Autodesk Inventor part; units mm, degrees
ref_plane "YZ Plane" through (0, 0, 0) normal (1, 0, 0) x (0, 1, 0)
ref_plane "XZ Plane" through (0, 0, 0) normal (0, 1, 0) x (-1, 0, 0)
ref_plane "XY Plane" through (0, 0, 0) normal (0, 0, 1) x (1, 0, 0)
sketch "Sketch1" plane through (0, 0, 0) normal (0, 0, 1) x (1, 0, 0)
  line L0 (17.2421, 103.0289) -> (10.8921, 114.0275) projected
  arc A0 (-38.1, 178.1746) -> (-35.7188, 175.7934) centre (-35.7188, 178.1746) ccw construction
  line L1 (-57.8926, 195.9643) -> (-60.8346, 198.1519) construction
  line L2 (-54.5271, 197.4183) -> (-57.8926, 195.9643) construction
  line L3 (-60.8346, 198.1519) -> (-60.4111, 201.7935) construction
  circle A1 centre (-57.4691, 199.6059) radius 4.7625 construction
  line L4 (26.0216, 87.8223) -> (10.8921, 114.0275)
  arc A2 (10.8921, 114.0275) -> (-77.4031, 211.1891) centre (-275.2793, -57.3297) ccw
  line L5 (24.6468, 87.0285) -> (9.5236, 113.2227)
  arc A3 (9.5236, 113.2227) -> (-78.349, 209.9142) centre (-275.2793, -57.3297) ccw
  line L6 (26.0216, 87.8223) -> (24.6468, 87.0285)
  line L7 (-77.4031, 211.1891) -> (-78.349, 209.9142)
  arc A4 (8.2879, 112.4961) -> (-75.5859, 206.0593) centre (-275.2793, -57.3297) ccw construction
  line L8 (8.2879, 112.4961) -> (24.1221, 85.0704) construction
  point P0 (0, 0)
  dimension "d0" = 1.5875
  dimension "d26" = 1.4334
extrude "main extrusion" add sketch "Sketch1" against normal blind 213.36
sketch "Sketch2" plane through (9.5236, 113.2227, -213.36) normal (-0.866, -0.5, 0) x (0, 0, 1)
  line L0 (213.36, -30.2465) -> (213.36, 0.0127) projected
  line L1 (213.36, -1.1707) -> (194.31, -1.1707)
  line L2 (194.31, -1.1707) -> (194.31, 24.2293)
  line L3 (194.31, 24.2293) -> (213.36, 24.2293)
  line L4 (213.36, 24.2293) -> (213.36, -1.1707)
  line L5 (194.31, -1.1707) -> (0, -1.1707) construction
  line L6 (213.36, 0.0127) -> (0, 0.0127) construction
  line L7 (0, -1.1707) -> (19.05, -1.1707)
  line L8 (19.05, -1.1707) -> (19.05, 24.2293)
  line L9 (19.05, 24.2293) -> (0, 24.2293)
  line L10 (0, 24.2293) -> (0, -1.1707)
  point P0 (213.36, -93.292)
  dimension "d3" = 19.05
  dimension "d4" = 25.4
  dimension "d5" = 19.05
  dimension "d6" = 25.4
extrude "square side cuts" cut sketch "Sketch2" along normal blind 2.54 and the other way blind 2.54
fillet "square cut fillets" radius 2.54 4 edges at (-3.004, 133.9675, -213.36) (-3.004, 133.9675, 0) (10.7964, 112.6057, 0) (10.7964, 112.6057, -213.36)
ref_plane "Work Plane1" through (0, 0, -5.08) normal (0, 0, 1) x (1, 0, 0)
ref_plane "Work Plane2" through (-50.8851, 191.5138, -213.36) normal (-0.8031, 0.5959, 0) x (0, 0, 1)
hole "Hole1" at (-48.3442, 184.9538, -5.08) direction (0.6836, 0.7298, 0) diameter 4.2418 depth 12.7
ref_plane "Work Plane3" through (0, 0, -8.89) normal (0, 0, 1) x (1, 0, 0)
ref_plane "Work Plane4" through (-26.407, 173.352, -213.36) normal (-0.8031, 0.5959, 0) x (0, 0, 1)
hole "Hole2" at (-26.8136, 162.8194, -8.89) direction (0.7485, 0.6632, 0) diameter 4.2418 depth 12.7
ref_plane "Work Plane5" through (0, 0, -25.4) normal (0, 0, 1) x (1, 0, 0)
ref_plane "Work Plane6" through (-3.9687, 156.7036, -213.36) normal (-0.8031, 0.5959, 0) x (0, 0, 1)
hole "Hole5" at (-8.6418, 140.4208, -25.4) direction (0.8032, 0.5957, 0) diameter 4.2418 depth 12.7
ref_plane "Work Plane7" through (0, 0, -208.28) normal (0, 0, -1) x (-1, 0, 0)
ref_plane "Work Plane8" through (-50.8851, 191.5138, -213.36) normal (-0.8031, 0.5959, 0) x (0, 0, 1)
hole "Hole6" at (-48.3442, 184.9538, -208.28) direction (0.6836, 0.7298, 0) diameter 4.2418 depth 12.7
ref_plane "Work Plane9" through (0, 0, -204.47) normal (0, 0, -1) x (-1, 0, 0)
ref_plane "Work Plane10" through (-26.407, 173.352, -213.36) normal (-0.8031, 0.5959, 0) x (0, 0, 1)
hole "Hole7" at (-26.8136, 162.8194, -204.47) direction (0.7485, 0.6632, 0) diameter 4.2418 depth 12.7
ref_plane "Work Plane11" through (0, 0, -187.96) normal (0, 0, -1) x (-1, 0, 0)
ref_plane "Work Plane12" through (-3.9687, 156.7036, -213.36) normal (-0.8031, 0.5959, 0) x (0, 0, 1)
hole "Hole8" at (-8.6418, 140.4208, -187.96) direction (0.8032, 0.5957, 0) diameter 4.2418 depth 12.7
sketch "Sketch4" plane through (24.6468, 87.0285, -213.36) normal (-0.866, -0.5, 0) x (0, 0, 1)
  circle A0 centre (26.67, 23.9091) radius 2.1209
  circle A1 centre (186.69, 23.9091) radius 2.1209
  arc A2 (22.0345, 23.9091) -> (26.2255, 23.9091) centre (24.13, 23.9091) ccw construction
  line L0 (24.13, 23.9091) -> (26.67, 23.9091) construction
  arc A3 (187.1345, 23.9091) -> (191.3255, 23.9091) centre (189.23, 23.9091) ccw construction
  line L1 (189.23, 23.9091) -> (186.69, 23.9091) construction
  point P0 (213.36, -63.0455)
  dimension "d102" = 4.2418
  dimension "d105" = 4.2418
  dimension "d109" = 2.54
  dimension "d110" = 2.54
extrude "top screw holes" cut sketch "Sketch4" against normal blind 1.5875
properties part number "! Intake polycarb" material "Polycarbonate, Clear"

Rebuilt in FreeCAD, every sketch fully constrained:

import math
import FreeCAD as App
import Part
import Sketcher
Q = App.Units.Quantity


def edges_at(feature, points):
    """Names of the edges that pass closest to the given points."""
    edges = feature.Shape.Edges
    near = lambda p: min(range(len(edges)), key=lambda i: edges[i].distToShape(Part.Vertex(*p))[0])
    return sorted({f"Edge{near(p) + 1}" for p in points})

doc = App.newDocument("Part")
body = doc.addObject("PartDesign::Body", "Body")

# Sketch on XY plane
sketch1 = body.newObject("Sketcher::SketchObject", "Sketch")
sketch1.AttachmentSupport = (doc.getObject("XY_Plane"), [""])
sketch1.MapMode = "FlatFace"
sketch1.addGeometry([
    Part.LineSegment(App.Vector(26.0216, 87.8223, 0), App.Vector(17.242109, 103.028905, 0)),  # 0
    Part.LineSegment(App.Vector(17.2421, 103.0289, 0), App.Vector(10.8921, 114.0275, 0)),  # 1
    Part.ArcOfCircle(Part.Circle(App.Vector(-275.2793, -57.3297, 0), App.Vector(0, 0, 1), 333.552635), math.radians(30.912845), math.radians(53.612849)),  # 2
    Part.LineSegment(App.Vector(-77.4031, 211.1891, 0), App.Vector(-78.349, 209.9142, 0)),  # 3
    Part.ArcOfCircle(Part.Circle(App.Vector(-275.280299, -57.330442, 0), App.Vector(0, 0, 1), 331.966316), math.radians(30.915036), math.radians(53.613676)),  # 4
    Part.LineSegment(App.Vector(9.5236, 113.2227, 0), App.Vector(24.6468, 87.0285, 0)),  # 5
    Part.LineSegment(App.Vector(24.6468, 87.0285, 0), App.Vector(26.0216, 87.8223, 0)),  # 6
], False)
sketch1.addConstraint([
    Sketcher.Constraint("Coincident", 0, 2, 1, 1),
    Sketcher.Constraint("Coincident", 1, 2, 2, 1),
    Sketcher.Constraint("Coincident", 2, 2, 3, 1),
    Sketcher.Constraint("Coincident", 3, 2, 4, 2),
    Sketcher.Constraint("Coincident", 4, 1, 5, 1),
    Sketcher.Constraint("Coincident", 5, 2, 6, 1),
    Sketcher.Constraint("Coincident", 6, 2, 0, 1),
    Sketcher.Constraint("Parallel", 0, 1),
    Sketcher.Constraint("Parallel", 1, 5),
    Sketcher.Constraint("Perpendicular", 5, 6),
    Sketcher.Constraint("Equal", 3, 6),
    Sketcher.Constraint("Distance", 3, Q("0.0625 in")),
    Sketcher.Constraint("Angle", 0, Q("119.9999 deg")),
    Sketcher.Constraint("Radius", 2, Q("13.132 in")),
    Sketcher.Constraint("Distance", 1, Q("0.5 in")),
    Sketcher.Constraint("Radius", 4, 331.9663),
    Sketcher.Constraint("Distance", 0, Q("0.6913 in")),
    Sketcher.Constraint("Distance", 5, Q("1.1908 in")),
    Sketcher.Constraint("DistanceX", 4, 3, -1, 1, Q("10.8378 in")),
    Sketcher.Constraint("DistanceY", 4, 3, -1, 1, Q("2.2571 in")),
    Sketcher.Constraint("DistanceX", 3, 2, -1, 1, Q("3.0846 in")),
    Sketcher.Constraint("DistanceX", 2, 3, 0, 2, Q("11.5166 in")),
    Sketcher.Constraint("DistanceX", 2, 2, 1, 2, Q("3.4762 in")),
])
pad1 = body.newObject("PartDesign::Pad", "Pad")
pad1.Profile = sketch1
pad1.Length = Q("8.4 in")
pad1.Reversed = True

# Sketch on an angled plane
sketch2 = body.newObject("Sketcher::SketchObject", "Sketch001")
sketch2.Placement = App.Placement(App.Vector(9.5236, 113.2227, -213.36), App.Rotation(App.Vector(0, 0, 1), App.Vector(-0.5, 0.866025404, 0), App.Vector(-0.866025404, -0.5, 0), "ZXY"))
sketch2.addGeometry([
    Part.LineSegment(App.Vector(194.31, -1.1707, 0), App.Vector(213.36, -1.1707, 0)),  # 0
    Part.LineSegment(App.Vector(213.36, -1.1707, 0), App.Vector(213.36, 24.2293, 0)),  # 1
    Part.LineSegment(App.Vector(213.36, 24.2293, 0), App.Vector(194.31, 24.2293, 0)),  # 2
    Part.LineSegment(App.Vector(194.31, 24.2293, 0), App.Vector(194.31, -1.1707, 0)),  # 3
    Part.LineSegment(App.Vector(0, 24.2293, 0), App.Vector(0, -1.1707, 0)),  # 4
    Part.LineSegment(App.Vector(0, -1.1707, 0), App.Vector(19.05, -1.1707, 0)),  # 5
    Part.LineSegment(App.Vector(19.05, -1.1707, 0), App.Vector(19.05, 24.2293, 0)),  # 6
    Part.LineSegment(App.Vector(19.05, 24.2293, 0), App.Vector(0, 24.2293, 0)),  # 7
], False)
sketch2.addConstraint([
    Sketcher.Constraint("Coincident", 0, 2, 1, 1),
    Sketcher.Constraint("Coincident", 1, 2, 2, 1),
    Sketcher.Constraint("Coincident", 2, 2, 3, 1),
    Sketcher.Constraint("Coincident", 3, 2, 0, 1),
    Sketcher.Constraint("Coincident", 4, 2, 5, 1),
    Sketcher.Constraint("Coincident", 5, 2, 6, 1),
    Sketcher.Constraint("Coincident", 6, 2, 7, 1),
    Sketcher.Constraint("Coincident", 7, 2, 4, 1),
    Sketcher.Constraint("Horizontal", 0),
    Sketcher.Constraint("Vertical", 1),
    Sketcher.Constraint("Horizontal", 2),
    Sketcher.Constraint("Vertical", 3),
    Sketcher.Constraint("Vertical", 4),
    Sketcher.Constraint("Horizontal", 5),
    Sketcher.Constraint("Vertical", 6),
    Sketcher.Constraint("Horizontal", 7),
    Sketcher.Constraint("PointOnObject", 4, 2, -2),
    Sketcher.Constraint("Horizontal", 3, 2, 4, 2),
    Sketcher.Constraint("Horizontal", 2, 2, 6, 2),
    Sketcher.Constraint("Equal", 2, 5),
    Sketcher.Constraint("DistanceY", 1, 1, 1, 2, Q("1 in")),
    Sketcher.Constraint("DistanceX", 0, 1, 0, 2, Q("0.75 in")),
    Sketcher.Constraint("DistanceX", -1, 1, 0, 2, Q("8.4 in")),
    Sketcher.Constraint("DistanceY", 0, 2, -1, 1, Q("0.0461 in")),
])
pocket1 = body.newObject("PartDesign::Pocket", "Pocket")
pocket1.Profile = sketch2
pocket1.Type = "ThroughAll"
pocket1.Midplane = True
doc.recompute()

fillet = body.newObject("PartDesign::Fillet", "Fillet")
fillet.Base = (pocket1, edges_at(pocket1, [
    (-3.004, 133.968, -213.36),
    (-3.004, 133.968, 0),
    (10.796, 112.606, 0),
    (10.796, 112.606, -213.36),
]))
fillet.Radius = Q("0.1 in")

# Sketch on an angled plane
sketch3 = body.newObject("Sketcher::SketchObject", "Sketch002")
sketch3.Placement = App.Placement(App.Vector(69.685944, 74.395556, 0), App.Rotation(App.Vector(0.729830289, -0.683628371, 0), App.Vector(0, 0, 1), App.Vector(-0.683628371, -0.729830289, 0), "ZXY"))
sketch3.addGeometry(Part.Circle(App.Vector(-161.722727, -5.08, 0), App.Vector(0, 0, 1), 2.1209), False)
sketch3.addConstraint([
    Sketcher.Constraint("Diameter", 0, Q("0.167 in")),
    Sketcher.Constraint("DistanceY", 0, 3, -1, 1, Q("0.2 in")),
    Sketcher.Constraint("DistanceX", 0, 3, -1, 1, 161.7227),
])
doc.recompute()
hole = body.newObject("PartDesign::Hole", "Hole")
hole.Profile = sketch3
hole.ThreadType = "None"
hole.Diameter = Q("0.167 in")
hole.DepthType = "Dimension"
hole.Depth = Q("0.5 in")
hole.DrillPoint = "Flat"

# Sketch on an angled plane
sketch4 = body.newObject("Sketcher::SketchObject", "Sketch003")
sketch4.Placement = App.Placement(App.Vector(65.796326, 58.298094, 0), App.Rotation(App.Vector(0.663171322, -0.748467633, 0), App.Vector(0, 0, 1), App.Vector(-0.748467633, -0.663171322, 0), "ZXY"))
sketch4.addGeometry(Part.Circle(App.Vector(-139.647062, -8.89, 0), App.Vector(0, 0, 1), 2.1209), False)
sketch4.addConstraint([
    Sketcher.Constraint("Diameter", 0, Q("0.167 in")),
    Sketcher.Constraint("DistanceY", 0, 3, -1, 1, Q("0.35 in")),
    Sketcher.Constraint("DistanceX", 0, 3, -1, 1, 139.647),
])
doc.recompute()
hole2 = body.newObject("PartDesign::Hole", "Hole001")
hole2.Profile = sketch4
hole2.ThreadType = "None"
hole2.Diameter = Q("0.167 in")
hole2.DepthType = "Dimension"
hole2.Depth = Q("0.5 in")
hole2.DrillPoint = "Flat"

# Sketch on an angled plane
sketch5 = body.newObject("Sketcher::SketchObject", "Sketch004")
sketch5.Placement = App.Placement(App.Vector(61.61222, 45.695218, 0), App.Rotation(App.Vector(0.595703357, -0.803204526, 0), App.Vector(0, 0, 1), App.Vector(-0.803204526, -0.595703357, 0), "ZXY"))
sketch5.addGeometry(Part.Circle(App.Vector(-117.934571, -25.4, 0), App.Vector(0, 0, 1), 2.1209), False)
sketch5.addConstraint([
    Sketcher.Constraint("Diameter", 0, Q("0.167 in")),
    Sketcher.Constraint("DistanceY", 0, 3, -1, 1, Q("1 in")),
    Sketcher.Constraint("DistanceX", 0, 3, -1, 1, Q("4.6431 in")),
])
doc.recompute()
hole3 = body.newObject("PartDesign::Hole", "Hole002")
hole3.Profile = sketch5
hole3.ThreadType = "None"
hole3.Diameter = Q("0.167 in")
hole3.DepthType = "Dimension"
hole3.Depth = Q("0.5 in")
hole3.DrillPoint = "Flat"

# Sketch on an angled plane
sketch6 = body.newObject("Sketcher::SketchObject", "Sketch005")
sketch6.Placement = App.Placement(App.Vector(69.685944, 74.395556, 0), App.Rotation(App.Vector(0.729830289, -0.683628371, 0), App.Vector(0, 0, 1), App.Vector(-0.683628371, -0.729830289, 0), "ZXY"))
sketch6.addGeometry(Part.Circle(App.Vector(-161.722727, -208.28, 0), App.Vector(0, 0, 1), 2.1209), False)
sketch6.addConstraint([
    Sketcher.Constraint("Diameter", 0, Q("0.167 in")),
    Sketcher.Constraint("DistanceY", 0, 3, -1, 1, Q("8.2 in")),
    Sketcher.Constraint("DistanceX", 0, 3, -1, 1, 161.7227),
])
doc.recompute()
hole4 = body.newObject("PartDesign::Hole", "Hole003")
hole4.Profile = sketch6
hole4.ThreadType = "None"
hole4.Diameter = Q("0.167 in")
hole4.DepthType = "Dimension"
hole4.Depth = Q("0.5 in")
hole4.DrillPoint = "Flat"

# Sketch on an angled plane
sketch7 = body.newObject("Sketcher::SketchObject", "Sketch006")
sketch7.Placement = App.Placement(App.Vector(65.796326, 58.298094, 0), App.Rotation(App.Vector(0.663171322, -0.748467633, 0), App.Vector(0, 0, 1), App.Vector(-0.748467633, -0.663171322, 0), "ZXY"))
sketch7.addGeometry(Part.Circle(App.Vector(-139.647062, -204.47, 0), App.Vector(0, 0, 1), 2.1209), False)
sketch7.addConstraint([
    Sketcher.Constraint("Diameter", 0, Q("0.167 in")),
    Sketcher.Constraint("DistanceY", 0, 3, -1, 1, Q("8.05 in")),
    Sketcher.Constraint("DistanceX", 0, 3, -1, 1, 139.647),
])
doc.recompute()
hole5 = body.newObject("PartDesign::Hole", "Hole004")
hole5.Profile = sketch7
hole5.ThreadType = "None"
hole5.Diameter = Q("0.167 in")
hole5.DepthType = "Dimension"
hole5.Depth = Q("0.5 in")
hole5.DrillPoint = "Flat"

# Sketch on an angled plane
sketch8 = body.newObject("Sketcher::SketchObject", "Sketch007")
sketch8.Placement = App.Placement(App.Vector(61.61222, 45.695218, 0), App.Rotation(App.Vector(0.595703357, -0.803204526, 0), App.Vector(0, 0, 1), App.Vector(-0.803204526, -0.595703357, 0), "ZXY"))
sketch8.addGeometry(Part.Circle(App.Vector(-117.934571, -187.96, 0), App.Vector(0, 0, 1), 2.1209), False)
sketch8.addConstraint([
    Sketcher.Constraint("Diameter", 0, Q("0.167 in")),
    Sketcher.Constraint("DistanceY", 0, 3, -1, 1, Q("7.4 in")),
    Sketcher.Constraint("DistanceX", 0, 3, -1, 1, Q("4.6431 in")),
])
doc.recompute()
hole6 = body.newObject("PartDesign::Hole", "Hole005")
hole6.Profile = sketch8
hole6.ThreadType = "None"
hole6.Diameter = Q("0.167 in")
hole6.DepthType = "Dimension"
hole6.Depth = Q("0.5 in")
hole6.DrillPoint = "Flat"

# Sketch on an angled plane
sketch9 = body.newObject("Sketcher::SketchObject", "Sketch008")
sketch9.Placement = App.Placement(App.Vector(24.6468, 87.0285, -213.36), App.Rotation(App.Vector(0, 0, 1), App.Vector(-0.5, 0.866025404, 0), App.Vector(-0.866025404, -0.5, 0), "ZXY"))
sketch9.addGeometry([
    Part.Circle(App.Vector(26.67, 23.9091, 0), App.Vector(0, 0, 1), 2.1209),
    Part.Circle(App.Vector(186.69, 23.9091, 0), App.Vector(0, 0, 1), 2.1209),
], False)
sketch9.addConstraint([
    Sketcher.Constraint("Equal", 0, 1),
    Sketcher.Constraint("Horizontal", 0, 3, 1, 3),
    Sketcher.Constraint("Diameter", 0, Q("0.167 in")),
    Sketcher.Constraint("DistanceX", 0, 3, 1, 3, Q("6.3 in")),
    Sketcher.Constraint("DistanceX", -1, 1, 0, 3, Q("1.05 in")),
    Sketcher.Constraint("DistanceY", -1, 1, 0, 3, Q("0.9413 in")),
])
pocket2 = body.newObject("PartDesign::Pocket", "Pocket001")
pocket2.Profile = sketch9
pocket2.Length = Q("0.0625 in")

doc.recompute()
